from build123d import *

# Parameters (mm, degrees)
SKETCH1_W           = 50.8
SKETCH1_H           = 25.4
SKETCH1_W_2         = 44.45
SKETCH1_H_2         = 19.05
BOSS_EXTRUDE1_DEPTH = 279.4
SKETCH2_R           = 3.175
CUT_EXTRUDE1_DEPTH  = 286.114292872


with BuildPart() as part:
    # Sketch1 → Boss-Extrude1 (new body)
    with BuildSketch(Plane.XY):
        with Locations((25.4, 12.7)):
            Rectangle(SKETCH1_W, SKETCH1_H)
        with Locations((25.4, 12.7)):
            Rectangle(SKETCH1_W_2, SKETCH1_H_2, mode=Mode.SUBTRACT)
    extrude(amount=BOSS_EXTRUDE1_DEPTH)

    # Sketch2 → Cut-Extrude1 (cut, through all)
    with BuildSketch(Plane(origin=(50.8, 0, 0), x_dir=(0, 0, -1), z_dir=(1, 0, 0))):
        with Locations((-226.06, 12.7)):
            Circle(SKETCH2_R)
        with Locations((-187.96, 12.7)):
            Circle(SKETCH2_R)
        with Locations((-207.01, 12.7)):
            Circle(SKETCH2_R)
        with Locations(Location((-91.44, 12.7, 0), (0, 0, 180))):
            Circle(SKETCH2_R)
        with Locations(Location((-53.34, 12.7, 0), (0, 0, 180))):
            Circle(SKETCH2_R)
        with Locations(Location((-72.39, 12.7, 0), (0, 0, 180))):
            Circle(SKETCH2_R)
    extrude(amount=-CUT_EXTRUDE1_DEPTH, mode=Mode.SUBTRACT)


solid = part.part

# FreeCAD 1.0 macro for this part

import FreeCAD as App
import Part
import Sketcher

V = App.Vector
Q = App.Units.Quantity


def add_polygon(sketch, points):
    """Adds a closed chain of lines whose ends are joined by coincident constraints."""
    first, n = sketch.GeometryCount, len(points)
    for a, b in zip(points, points[1:] + points[:1]):
        sketch.addGeometry(Part.LineSegment(App.Vector(*a, 0), App.Vector(*b, 0)), False)
    for i in range(n):
        sketch.addConstraint(Sketcher.Constraint("Coincident", first + i, 2, first + (i + 1) % n, 1))

doc = App.newDocument("Part")
body = doc.addObject("PartDesign::Body", "Body")

sketch1 = body.newObject("Sketcher::SketchObject", "Sketch")
sketch1.AttachmentSupport = (doc.getObject("XY_Plane"), [""])
sketch1.MapMode = "FlatFace"
add_polygon(sketch1, [(0, 25), (0, 0), (51, 0), (51, 25)])
add_polygon(sketch1, [(48, 3), (3, 3), (3, 22), (48, 22)])
sketch1.addConstraint([
    Sketcher.Constraint("Vertical", 0),
    Sketcher.Constraint("Horizontal", 1),
    Sketcher.Constraint("Vertical", 2),
    Sketcher.Constraint("Horizontal", 3),
    Sketcher.Constraint("Horizontal", 4),
    Sketcher.Constraint("Vertical", 5),
    Sketcher.Constraint("Horizontal", 6),
    Sketcher.Constraint("Vertical", 7),
    Sketcher.Constraint("Coincident", 0, 2, -1, 1),
    Sketcher.Constraint("DistanceX", 1, 1, 1, 2, Q("2 in")),
    Sketcher.Constraint("DistanceY", 0, 2, 0, 1, Q("1 in")),
    Sketcher.Constraint("DistanceX", 4, 2, 4, 1, Q("1.75 in")),
    Sketcher.Constraint("DistanceY", 5, 1, 5, 2, Q("0.75 in")),
    Sketcher.Constraint("DistanceX", -1, 1, 4, 2, Q("0.125 in")),
    Sketcher.Constraint("DistanceY", -1, 1, 4, 2, Q("0.125 in")),
])
pad1 = body.newObject("PartDesign::Pad", "Pad")
pad1.Profile = sketch1
pad1.Length = Q("11 in")

sketch2 = body.newObject("Sketcher::SketchObject", "Sketch001")
sketch2.AttachmentSupport = (doc.getObject("YZ_Plane"), [""])
sketch2.MapMode = "FlatFace"
sketch2.AttachmentOffset = App.Placement(V(0, 0, 2 * 25.4), App.Rotation())
sketch2.addGeometry([
    Part.Circle(V(12.7, 226.1, 0), V(0, 0, 1), 3.2),
    Part.Circle(V(12.7, 188, 0), V(0, 0, 1), 3.2),
    Part.Circle(V(12.7, 207, 0), V(0, 0, 1), 3.2),
    Part.Circle(V(12.7, 91.4, 0), V(0, 0, 1), 3.2),
    Part.Circle(V(12.7, 53.3, 0), V(0, 0, 1), 3.2),
    Part.Circle(V(12.7, 72.4, 0), V(0, 0, 1), 3.2),
], False)
sketch2.addConstraint([
    Sketcher.Constraint("Equal", 0, 1),
    Sketcher.Constraint("Equal", 1, 2),
    Sketcher.Constraint("Equal", 2, 3),
    Sketcher.Constraint("Equal", 3, 4),
    Sketcher.Constraint("Equal", 4, 5),
    Sketcher.Constraint("Vertical", 0, 3, 1, 3),
    Sketcher.Constraint("Vertical", 1, 3, 2, 3),
    Sketcher.Constraint("Vertical", 2, 3, 3, 3),
    Sketcher.Constraint("Vertical", 3, 3, 4, 3),
    Sketcher.Constraint("Vertical", 4, 3, 5, 3),
    Sketcher.Constraint("Diameter", 0, Q("0.25 in")),
    Sketcher.Constraint("DistanceX", -1, 1, 0, 3, Q("0.5 in")),
    Sketcher.Constraint("DistanceY", -1, 1, 0, 3, Q("8.9 in")),
    Sketcher.Constraint("DistanceY", -1, 1, 1, 3, Q("7.4 in")),
    Sketcher.Constraint("DistanceY", -1, 1, 3, 3, Q("3.6 in")),
    Sketcher.Constraint("DistanceY", -1, 1, 4, 3, Q("2.1 in")),
    Sketcher.Constraint("DistanceY", 5, 3, 2, 3, Q("5.3 in")),
    Sketcher.Constraint("DistanceY", -1, 1, 2, 3, Q("8.15 in")),
])
pocket1 = body.newObject("PartDesign::Pocket", "Pocket")
pocket1.Profile = sketch2
pocket1.Type = "ThroughAll"

doc.recompute()
